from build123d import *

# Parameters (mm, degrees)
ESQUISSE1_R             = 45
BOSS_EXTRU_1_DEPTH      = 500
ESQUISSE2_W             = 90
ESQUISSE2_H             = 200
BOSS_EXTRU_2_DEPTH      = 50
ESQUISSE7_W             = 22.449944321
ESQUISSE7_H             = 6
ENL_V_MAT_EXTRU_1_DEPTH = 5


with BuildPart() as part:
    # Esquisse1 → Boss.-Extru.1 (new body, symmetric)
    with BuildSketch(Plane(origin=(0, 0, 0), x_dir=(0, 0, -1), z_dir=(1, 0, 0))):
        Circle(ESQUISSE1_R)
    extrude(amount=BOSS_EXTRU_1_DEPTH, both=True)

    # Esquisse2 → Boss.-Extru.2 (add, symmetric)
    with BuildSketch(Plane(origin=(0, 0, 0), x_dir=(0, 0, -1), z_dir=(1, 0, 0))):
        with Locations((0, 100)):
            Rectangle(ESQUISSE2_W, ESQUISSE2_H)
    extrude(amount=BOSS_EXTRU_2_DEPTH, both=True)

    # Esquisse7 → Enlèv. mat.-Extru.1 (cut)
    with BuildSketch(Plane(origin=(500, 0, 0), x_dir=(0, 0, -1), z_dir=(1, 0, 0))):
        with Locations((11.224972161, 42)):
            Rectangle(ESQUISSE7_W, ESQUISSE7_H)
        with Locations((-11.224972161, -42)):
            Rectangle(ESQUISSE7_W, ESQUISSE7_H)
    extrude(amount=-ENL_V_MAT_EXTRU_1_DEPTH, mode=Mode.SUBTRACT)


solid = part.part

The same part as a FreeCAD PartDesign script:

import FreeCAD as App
import Part
import Sketcher
from FreeCAD import Vector

doc = App.newDocument("Part")
body = doc.addObject("PartDesign::Body", "Body")

sketch1 = body.newObject("Sketcher::SketchObject", "Sketch")
sketch1.AttachmentSupport = (doc.getObject("YZ_Plane"), [""])
sketch1.MapMode = "FlatFace"
sketch1.addGeometry(Part.Circle(Vector(0, 0, 0), Vector(0, 0, 1), 45), False)
sketch1.addConstraint([
    Sketcher.Constraint("Coincident", 0, 3, -1, 1),
    Sketcher.Constraint("Diameter", 0, 90.0),
])
pad1 = body.newObject("PartDesign::Pad", "Pad")
pad1.Profile = sketch1
pad1.Length = 1000
pad1.Midplane = True

sketch2 = body.newObject("Sketcher::SketchObject", "Sketch001")
sketch2.AttachmentSupport = (doc.getObject("YZ_Plane"), [""])
sketch2.MapMode = "FlatFace"
sketch2.addGeometry([
    Part.LineSegment(Vector(200, 45, 0), Vector(0, 45, 0)),
    Part.LineSegment(Vector(0, 45, 0), Vector(0, -45, 0)),
    Part.LineSegment(Vector(0, -45, 0), Vector(200, -45, 0)),
    Part.LineSegment(Vector(200, -45, 0), Vector(200, 45, 0)),
], False)
sketch2.addConstraint([
    Sketcher.Constraint("Coincident", 0, 2, 1, 1),
    Sketcher.Constraint("Coincident", 1, 2, 2, 1),
    Sketcher.Constraint("Coincident", 2, 2, 3, 1),
    Sketcher.Constraint("Coincident", 3, 2, 0, 1),
    Sketcher.Constraint("Horizontal", 0),
    Sketcher.Constraint("Vertical", 1),
    Sketcher.Constraint("Horizontal", 2),
    Sketcher.Constraint("Vertical", 3),
    Sketcher.Constraint("Symmetric", 0, 2, 1, 2, -1, 1),
    Sketcher.Constraint("DistanceX", 0, 2, 0, 1, 200.0),
    Sketcher.Constraint("DistanceY", 1, 2, 1, 1, 90.0),
])
pad2 = body.newObject("PartDesign::Pad", "Pad001")
pad2.Profile = sketch2
pad2.Length = 100
pad2.Midplane = True

sketch3 = body.newObject("Sketcher::SketchObject", "Sketch002")
sketch3.AttachmentSupport = (doc.getObject("YZ_Plane"), [""])
sketch3.MapMode = "FlatFace"
sketch3.AttachmentOffset = App.Placement(Vector(0, 0, 500), App.Rotation())
sketch3.addGeometry([
    Part.LineSegment(Vector(45, 0, 0), Vector(39, 0, 0)),
    Part.LineSegment(Vector(39, 0, 0), Vector(39, -22.449944, 0)),
    Part.LineSegment(Vector(39, -22.449944, 0), Vector(45, -22.449944, 0)),
    Part.LineSegment(Vector(45, -22.449944, 0), Vector(45, 0, 0)),
    Part.LineSegment(Vector(-39, 22.449944, 0), Vector(-45, 22.449944, 0)),
    Part.LineSegment(Vector(-45, 22.449944, 0), Vector(-45, 0, 0)),
    Part.LineSegment(Vector(-45, 0, 0), Vector(-39, 0, 0)),
    Part.LineSegment(Vector(-39, 0, 0), Vector(-39, 22.449944, 0)),
], False)
sketch3.addConstraint([
    Sketcher.Constraint("Coincident", 0, 2, 1, 1),
    Sketcher.Constraint("Coincident", 1, 2, 2, 1),
    Sketcher.Constraint("Coincident", 2, 2, 3, 1),
    Sketcher.Constraint("Coincident", 3, 2, 0, 1),
    Sketcher.Constraint("Coincident", 4, 2, 5, 1),
    Sketcher.Constraint("Coincident", 5, 2, 6, 1),
    Sketcher.Constraint("Coincident", 6, 2, 7, 1),
    Sketcher.Constraint("Coincident", 7, 2, 4, 1),
    Sketcher.Constraint("Horizontal", 0),
    Sketcher.Constraint("Vertical", 1),
    Sketcher.Constraint("Horizontal", 2),
    Sketcher.Constraint("Vertical", 3),
    Sketcher.Constraint("Horizontal", 4),
    Sketcher.Constraint("Vertical", 5),
    Sketcher.Constraint("Horizontal", 6),
    Sketcher.Constraint("Vertical", 7),
    Sketcher.Constraint("Symmetric", 2, 2, 4, 2, -1, 1),
    Sketcher.Constraint("Symmetric", 0, 2, 6, 2, -1, 1),
    Sketcher.Constraint("PointOnObject", 0, 2, -1),
    Sketcher.Constraint("DistanceX", 0, 2, 0, 1, 6.0),
    Sketcher.Constraint("DistanceX", -1, 1, 0, 2, 39.0),
    Sketcher.Constraint("DistanceY", 1, 2, 1, 1, 22.449944),
])
pocket1 = body.newObject("PartDesign::Pocket", "Pocket")
pocket1.Profile = sketch3
pocket1.Length = 5

doc.recompute()
